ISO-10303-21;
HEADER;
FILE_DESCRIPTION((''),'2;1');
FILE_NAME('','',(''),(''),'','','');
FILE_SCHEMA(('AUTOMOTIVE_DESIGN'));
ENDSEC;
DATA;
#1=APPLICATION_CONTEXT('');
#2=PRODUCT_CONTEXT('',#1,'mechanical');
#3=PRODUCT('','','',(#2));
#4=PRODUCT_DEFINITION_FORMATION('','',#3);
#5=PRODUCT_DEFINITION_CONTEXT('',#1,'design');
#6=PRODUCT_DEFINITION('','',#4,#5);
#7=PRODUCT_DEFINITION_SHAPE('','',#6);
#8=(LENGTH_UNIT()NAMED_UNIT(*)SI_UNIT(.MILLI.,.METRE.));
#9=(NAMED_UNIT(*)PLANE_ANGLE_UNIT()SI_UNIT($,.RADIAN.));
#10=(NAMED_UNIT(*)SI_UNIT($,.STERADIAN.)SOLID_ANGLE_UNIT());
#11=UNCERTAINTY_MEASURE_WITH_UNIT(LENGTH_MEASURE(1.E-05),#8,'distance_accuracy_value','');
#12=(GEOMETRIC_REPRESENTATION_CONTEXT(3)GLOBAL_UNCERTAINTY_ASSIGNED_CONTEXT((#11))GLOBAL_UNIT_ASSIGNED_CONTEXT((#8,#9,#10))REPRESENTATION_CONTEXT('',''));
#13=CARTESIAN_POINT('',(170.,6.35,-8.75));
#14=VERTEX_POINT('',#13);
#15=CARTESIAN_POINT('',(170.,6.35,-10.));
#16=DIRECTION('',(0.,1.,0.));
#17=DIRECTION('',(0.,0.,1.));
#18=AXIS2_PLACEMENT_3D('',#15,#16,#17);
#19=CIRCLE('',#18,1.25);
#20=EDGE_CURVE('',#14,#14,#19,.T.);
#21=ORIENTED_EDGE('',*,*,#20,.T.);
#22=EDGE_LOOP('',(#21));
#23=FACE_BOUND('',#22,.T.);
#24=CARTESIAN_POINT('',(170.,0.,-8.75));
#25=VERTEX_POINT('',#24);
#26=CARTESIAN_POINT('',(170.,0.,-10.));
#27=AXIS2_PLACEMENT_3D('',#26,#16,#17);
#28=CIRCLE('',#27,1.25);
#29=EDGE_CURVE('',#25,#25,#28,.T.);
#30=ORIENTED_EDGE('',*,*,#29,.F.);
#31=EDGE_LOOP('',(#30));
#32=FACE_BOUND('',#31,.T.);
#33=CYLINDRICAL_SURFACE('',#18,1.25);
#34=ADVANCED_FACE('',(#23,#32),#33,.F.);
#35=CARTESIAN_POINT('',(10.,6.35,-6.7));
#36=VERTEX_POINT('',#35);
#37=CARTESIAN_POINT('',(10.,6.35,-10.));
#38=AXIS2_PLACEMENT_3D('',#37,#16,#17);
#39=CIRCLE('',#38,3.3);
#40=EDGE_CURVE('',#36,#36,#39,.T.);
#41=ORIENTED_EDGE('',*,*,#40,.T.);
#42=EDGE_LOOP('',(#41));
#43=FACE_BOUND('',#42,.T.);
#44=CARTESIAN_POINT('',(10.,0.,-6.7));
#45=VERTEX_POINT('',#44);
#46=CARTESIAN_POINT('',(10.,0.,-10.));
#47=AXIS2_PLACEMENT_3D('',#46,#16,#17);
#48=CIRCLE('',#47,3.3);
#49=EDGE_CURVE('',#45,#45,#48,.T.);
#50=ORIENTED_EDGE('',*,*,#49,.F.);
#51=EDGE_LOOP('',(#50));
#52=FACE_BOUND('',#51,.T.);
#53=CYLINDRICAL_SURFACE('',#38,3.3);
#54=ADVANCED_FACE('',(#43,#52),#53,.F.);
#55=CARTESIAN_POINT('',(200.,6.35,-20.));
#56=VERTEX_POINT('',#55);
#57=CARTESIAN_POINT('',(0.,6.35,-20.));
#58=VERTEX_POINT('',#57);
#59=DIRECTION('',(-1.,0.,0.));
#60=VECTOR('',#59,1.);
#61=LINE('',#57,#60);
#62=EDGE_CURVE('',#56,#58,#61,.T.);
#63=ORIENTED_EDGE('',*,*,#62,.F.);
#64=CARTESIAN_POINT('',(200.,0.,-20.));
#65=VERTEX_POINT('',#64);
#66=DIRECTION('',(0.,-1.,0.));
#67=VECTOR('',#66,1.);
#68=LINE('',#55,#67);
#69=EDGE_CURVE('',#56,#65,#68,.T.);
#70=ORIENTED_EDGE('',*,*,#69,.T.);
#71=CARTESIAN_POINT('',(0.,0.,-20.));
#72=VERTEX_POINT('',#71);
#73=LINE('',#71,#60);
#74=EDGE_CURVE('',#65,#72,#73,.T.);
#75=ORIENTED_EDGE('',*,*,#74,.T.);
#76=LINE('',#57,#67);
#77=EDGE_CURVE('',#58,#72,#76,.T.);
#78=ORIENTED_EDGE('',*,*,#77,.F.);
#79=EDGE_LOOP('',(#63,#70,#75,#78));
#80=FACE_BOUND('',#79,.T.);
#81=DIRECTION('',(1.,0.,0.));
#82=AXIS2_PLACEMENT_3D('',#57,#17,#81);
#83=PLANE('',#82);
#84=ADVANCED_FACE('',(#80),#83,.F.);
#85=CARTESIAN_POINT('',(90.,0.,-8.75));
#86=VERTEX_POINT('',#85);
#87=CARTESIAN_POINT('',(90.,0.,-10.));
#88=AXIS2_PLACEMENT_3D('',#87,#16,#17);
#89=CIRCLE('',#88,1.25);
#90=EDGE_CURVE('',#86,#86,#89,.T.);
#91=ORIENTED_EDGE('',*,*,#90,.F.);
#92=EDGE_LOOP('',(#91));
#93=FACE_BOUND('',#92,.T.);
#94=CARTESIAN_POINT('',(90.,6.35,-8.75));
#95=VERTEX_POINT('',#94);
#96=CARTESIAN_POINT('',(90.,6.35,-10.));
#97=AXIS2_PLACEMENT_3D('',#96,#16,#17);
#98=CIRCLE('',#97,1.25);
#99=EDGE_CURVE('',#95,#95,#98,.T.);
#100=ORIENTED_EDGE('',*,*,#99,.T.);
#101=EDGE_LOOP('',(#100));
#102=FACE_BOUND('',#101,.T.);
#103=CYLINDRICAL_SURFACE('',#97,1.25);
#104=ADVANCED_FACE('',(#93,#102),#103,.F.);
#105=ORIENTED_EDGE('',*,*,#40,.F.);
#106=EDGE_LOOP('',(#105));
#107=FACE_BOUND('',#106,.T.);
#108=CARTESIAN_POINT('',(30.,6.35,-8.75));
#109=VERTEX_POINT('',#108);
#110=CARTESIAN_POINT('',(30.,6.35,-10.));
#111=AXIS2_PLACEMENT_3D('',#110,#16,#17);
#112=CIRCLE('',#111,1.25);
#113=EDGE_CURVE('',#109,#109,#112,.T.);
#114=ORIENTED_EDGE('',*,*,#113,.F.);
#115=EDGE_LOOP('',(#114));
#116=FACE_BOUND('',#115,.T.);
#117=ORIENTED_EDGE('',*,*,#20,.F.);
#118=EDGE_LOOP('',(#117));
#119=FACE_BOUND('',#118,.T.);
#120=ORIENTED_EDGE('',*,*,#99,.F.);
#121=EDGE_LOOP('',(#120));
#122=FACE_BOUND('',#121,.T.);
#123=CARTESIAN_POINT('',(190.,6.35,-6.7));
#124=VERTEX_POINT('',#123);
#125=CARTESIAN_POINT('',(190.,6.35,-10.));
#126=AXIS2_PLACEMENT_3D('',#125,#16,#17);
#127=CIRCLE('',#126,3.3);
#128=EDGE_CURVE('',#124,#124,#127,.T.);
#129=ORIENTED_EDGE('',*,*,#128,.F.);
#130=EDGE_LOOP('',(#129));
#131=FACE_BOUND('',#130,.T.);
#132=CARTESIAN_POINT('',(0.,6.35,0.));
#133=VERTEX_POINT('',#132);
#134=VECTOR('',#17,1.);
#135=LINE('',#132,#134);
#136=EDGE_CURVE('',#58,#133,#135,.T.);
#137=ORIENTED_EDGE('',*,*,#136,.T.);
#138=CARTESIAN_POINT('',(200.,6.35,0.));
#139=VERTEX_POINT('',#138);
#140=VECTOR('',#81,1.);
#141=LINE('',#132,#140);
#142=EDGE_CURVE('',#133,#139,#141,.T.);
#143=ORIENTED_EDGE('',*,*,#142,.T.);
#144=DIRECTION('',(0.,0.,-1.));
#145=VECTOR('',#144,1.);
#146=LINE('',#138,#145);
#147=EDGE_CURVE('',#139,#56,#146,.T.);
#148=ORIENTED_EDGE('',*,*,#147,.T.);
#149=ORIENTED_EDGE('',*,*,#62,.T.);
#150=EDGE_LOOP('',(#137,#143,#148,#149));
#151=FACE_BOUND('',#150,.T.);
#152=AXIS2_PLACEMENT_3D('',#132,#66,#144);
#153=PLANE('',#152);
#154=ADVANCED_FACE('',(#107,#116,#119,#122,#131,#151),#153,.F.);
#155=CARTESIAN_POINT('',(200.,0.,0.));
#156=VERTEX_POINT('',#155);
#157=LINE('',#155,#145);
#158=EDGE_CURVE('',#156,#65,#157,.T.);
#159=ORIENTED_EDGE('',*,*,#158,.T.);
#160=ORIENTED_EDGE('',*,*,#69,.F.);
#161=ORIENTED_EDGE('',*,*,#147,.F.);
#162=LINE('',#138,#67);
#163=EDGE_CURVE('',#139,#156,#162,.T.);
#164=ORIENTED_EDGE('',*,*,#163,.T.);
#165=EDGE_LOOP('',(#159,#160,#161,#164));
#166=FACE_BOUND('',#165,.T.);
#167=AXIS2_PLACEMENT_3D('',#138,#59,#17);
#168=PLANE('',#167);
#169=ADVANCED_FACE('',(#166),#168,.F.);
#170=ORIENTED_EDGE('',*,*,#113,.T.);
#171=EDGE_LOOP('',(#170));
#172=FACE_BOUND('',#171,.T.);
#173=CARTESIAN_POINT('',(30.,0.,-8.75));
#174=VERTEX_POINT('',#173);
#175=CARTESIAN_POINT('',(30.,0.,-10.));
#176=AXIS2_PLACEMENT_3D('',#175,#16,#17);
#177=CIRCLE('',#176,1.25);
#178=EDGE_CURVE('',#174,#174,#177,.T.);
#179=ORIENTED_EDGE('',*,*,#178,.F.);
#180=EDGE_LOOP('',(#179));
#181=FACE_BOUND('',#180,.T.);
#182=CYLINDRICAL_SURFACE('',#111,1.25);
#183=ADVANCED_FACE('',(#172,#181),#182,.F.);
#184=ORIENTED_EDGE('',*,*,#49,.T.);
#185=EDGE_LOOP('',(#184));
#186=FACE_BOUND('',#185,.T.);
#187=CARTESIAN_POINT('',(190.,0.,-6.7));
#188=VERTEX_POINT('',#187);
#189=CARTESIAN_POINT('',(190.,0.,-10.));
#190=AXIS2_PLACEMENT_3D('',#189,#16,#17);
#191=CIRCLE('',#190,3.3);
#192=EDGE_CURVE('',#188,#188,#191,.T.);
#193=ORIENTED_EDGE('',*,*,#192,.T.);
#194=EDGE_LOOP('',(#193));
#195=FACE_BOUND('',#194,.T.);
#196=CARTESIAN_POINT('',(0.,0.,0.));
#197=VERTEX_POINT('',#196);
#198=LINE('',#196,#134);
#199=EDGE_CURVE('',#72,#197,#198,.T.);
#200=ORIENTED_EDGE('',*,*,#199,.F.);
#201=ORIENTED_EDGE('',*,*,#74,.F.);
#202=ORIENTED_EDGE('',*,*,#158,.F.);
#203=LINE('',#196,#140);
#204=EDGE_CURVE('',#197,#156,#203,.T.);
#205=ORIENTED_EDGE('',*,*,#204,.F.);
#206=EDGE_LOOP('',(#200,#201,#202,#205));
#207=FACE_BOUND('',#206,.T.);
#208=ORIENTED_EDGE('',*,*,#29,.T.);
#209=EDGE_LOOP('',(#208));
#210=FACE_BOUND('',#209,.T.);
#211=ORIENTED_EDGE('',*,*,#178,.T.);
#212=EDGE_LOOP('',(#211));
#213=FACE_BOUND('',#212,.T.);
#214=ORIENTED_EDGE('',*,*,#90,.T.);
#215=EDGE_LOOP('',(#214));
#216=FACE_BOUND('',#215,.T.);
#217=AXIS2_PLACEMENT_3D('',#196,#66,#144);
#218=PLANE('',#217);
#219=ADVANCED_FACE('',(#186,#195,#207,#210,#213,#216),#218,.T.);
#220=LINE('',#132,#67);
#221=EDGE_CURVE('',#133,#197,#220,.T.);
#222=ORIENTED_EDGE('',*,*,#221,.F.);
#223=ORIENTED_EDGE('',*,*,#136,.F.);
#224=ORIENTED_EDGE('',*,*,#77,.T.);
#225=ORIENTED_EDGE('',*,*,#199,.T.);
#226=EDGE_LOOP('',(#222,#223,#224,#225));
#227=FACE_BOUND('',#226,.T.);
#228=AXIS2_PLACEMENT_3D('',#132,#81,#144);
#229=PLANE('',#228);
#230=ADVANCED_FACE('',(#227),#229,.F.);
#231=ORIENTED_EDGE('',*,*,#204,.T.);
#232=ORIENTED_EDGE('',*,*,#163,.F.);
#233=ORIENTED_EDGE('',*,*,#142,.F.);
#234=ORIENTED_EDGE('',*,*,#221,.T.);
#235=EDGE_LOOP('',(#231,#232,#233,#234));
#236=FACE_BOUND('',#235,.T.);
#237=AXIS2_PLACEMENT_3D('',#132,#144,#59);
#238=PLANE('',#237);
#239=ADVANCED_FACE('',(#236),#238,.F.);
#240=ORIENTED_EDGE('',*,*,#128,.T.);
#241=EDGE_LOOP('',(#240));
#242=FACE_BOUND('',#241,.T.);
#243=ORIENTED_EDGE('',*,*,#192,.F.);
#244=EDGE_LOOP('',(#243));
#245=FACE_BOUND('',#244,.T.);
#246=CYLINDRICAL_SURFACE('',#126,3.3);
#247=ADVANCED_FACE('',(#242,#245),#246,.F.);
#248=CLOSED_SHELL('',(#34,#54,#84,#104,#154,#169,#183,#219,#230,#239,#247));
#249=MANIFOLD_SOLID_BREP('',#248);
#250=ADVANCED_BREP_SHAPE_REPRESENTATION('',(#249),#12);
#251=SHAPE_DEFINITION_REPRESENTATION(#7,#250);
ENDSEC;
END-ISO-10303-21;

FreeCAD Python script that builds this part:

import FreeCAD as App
import Part
import Sketcher

doc = App.newDocument("Part")
body = doc.addObject("PartDesign::Body", "Body")

# Sketch on XZ plane
sketch1 = body.newObject("Sketcher::SketchObject", "Sketch")
sketch1.AttachmentSupport = (doc.getObject("XZ_Plane"), [""])
sketch1.MapMode = "FlatFace"
sketch1.addGeometry([
    Part.LineSegment(App.Vector(0, -20, 0), App.Vector(0, 0, 0)),
    Part.LineSegment(App.Vector(0, 0, 0), App.Vector(200, 0, 0)),
    Part.LineSegment(App.Vector(200, 0, 0), App.Vector(200, -20, 0)),
    Part.LineSegment(App.Vector(200, -20, 0), App.Vector(0, -20, 0)),
], False)
sketch1.addConstraint([
    Sketcher.Constraint("Coincident", 0, 2, 1, 1),
    Sketcher.Constraint("Coincident", 1, 2, 2, 1),
    Sketcher.Constraint("Coincident", 2, 2, 3, 1),
    Sketcher.Constraint("Coincident", 3, 2, 0, 1),
    Sketcher.Constraint("Vertical", 0),
    Sketcher.Constraint("Horizontal", 1),
    Sketcher.Constraint("Vertical", 2),
    Sketcher.Constraint("Horizontal", 3),
    Sketcher.Constraint("Coincident", 0, 2, -1, 1),
    Sketcher.Constraint("DistanceX", 1, 1, 1, 2, 200.0),
    Sketcher.Constraint("DistanceY", 0, 1, 0, 2, 20.0),
])
pad1 = body.newObject("PartDesign::Pad", "Pad")
pad1.Profile = sketch1
pad1.Length = 6.35
pad1.Reversed = True

# Sketch on XZ plane
sketch2 = body.newObject("Sketcher::SketchObject", "Sketch001")
sketch2.AttachmentSupport = (doc.getObject("XZ_Plane"), [""])
sketch2.MapMode = "FlatFace"
sketch2.AttachmentOffset = App.Placement(App.Vector(0, 0, -6.35), App.Rotation())
sketch2.addGeometry([
    Part.Circle(App.Vector(30, -10, 0), App.Vector(0, 0, 1), 1.2),
    Part.Circle(App.Vector(170, -10, 0), App.Vector(0, 0, 1), 1.2),
    Part.Circle(App.Vector(90, -10, 0), App.Vector(0, 0, 1), 1.2),
], False)
sketch2.addConstraint([
    Sketcher.Constraint("Equal", 0, 1),
    Sketcher.Constraint("Equal", 1, 2),
    Sketcher.Constraint("Horizontal", 0, 3, 1, 3),
    Sketcher.Constraint("Horizontal", 1, 3, 2, 3),
    Sketcher.Constraint("Diameter", 0, 2.5),
    Sketcher.Constraint("DistanceX", -1, 1, 0, 3, 30.0),
    Sketcher.Constraint("DistanceY", 0, 3, -1, 1, 10.0),
    Sketcher.Constraint("DistanceX", -1, 1, 1, 3, 170.0),
    Sketcher.Constraint("DistanceX", -1, 1, 2, 3, 90.0),
])
doc.recompute()
hole = body.newObject("PartDesign::Hole", "Hole")
hole.Profile = sketch2
hole.ThreadType = "None"
hole.Diameter = 2.5
hole.DepthType = "ThroughAll"
hole.Reversed = True

# Sketch on XZ plane
sketch3 = body.newObject("Sketcher::SketchObject", "Sketch002")
sketch3.AttachmentSupport = (doc.getObject("XZ_Plane"), [""])
sketch3.MapMode = "FlatFace"
sketch3.AttachmentOffset = App.Placement(App.Vector(0, 0, -6.35), App.Rotation())
sketch3.addGeometry([
    Part.Circle(App.Vector(10, -10, 0), App.Vector(0, 0, 1), 3.3),
    Part.Circle(App.Vector(190, -10, 0), App.Vector(0, 0, 1), 3.3),
], False)
sketch3.addConstraint([
    Sketcher.Constraint("Equal", 0, 1),
    Sketcher.Constraint("Horizontal", 0, 3, 1, 3),
    Sketcher.Constraint("Diameter", 0, 6.6),
    Sketcher.Constraint("DistanceX", -1, 1, 0, 3, 10.0),
    Sketcher.Constraint("DistanceY", 0, 3, -1, 1, 10.0),
    Sketcher.Constraint("DistanceX", -1, 1, 1, 3, 190.0),
])
doc.recompute()
hole2 = body.newObject("PartDesign::Hole", "Hole001")
hole2.Profile = sketch3
hole2.ThreadType = "None"
hole2.Diameter = 6.6
hole2.DepthType = "ThroughAll"
hole2.Reversed = True

doc.recompute()
